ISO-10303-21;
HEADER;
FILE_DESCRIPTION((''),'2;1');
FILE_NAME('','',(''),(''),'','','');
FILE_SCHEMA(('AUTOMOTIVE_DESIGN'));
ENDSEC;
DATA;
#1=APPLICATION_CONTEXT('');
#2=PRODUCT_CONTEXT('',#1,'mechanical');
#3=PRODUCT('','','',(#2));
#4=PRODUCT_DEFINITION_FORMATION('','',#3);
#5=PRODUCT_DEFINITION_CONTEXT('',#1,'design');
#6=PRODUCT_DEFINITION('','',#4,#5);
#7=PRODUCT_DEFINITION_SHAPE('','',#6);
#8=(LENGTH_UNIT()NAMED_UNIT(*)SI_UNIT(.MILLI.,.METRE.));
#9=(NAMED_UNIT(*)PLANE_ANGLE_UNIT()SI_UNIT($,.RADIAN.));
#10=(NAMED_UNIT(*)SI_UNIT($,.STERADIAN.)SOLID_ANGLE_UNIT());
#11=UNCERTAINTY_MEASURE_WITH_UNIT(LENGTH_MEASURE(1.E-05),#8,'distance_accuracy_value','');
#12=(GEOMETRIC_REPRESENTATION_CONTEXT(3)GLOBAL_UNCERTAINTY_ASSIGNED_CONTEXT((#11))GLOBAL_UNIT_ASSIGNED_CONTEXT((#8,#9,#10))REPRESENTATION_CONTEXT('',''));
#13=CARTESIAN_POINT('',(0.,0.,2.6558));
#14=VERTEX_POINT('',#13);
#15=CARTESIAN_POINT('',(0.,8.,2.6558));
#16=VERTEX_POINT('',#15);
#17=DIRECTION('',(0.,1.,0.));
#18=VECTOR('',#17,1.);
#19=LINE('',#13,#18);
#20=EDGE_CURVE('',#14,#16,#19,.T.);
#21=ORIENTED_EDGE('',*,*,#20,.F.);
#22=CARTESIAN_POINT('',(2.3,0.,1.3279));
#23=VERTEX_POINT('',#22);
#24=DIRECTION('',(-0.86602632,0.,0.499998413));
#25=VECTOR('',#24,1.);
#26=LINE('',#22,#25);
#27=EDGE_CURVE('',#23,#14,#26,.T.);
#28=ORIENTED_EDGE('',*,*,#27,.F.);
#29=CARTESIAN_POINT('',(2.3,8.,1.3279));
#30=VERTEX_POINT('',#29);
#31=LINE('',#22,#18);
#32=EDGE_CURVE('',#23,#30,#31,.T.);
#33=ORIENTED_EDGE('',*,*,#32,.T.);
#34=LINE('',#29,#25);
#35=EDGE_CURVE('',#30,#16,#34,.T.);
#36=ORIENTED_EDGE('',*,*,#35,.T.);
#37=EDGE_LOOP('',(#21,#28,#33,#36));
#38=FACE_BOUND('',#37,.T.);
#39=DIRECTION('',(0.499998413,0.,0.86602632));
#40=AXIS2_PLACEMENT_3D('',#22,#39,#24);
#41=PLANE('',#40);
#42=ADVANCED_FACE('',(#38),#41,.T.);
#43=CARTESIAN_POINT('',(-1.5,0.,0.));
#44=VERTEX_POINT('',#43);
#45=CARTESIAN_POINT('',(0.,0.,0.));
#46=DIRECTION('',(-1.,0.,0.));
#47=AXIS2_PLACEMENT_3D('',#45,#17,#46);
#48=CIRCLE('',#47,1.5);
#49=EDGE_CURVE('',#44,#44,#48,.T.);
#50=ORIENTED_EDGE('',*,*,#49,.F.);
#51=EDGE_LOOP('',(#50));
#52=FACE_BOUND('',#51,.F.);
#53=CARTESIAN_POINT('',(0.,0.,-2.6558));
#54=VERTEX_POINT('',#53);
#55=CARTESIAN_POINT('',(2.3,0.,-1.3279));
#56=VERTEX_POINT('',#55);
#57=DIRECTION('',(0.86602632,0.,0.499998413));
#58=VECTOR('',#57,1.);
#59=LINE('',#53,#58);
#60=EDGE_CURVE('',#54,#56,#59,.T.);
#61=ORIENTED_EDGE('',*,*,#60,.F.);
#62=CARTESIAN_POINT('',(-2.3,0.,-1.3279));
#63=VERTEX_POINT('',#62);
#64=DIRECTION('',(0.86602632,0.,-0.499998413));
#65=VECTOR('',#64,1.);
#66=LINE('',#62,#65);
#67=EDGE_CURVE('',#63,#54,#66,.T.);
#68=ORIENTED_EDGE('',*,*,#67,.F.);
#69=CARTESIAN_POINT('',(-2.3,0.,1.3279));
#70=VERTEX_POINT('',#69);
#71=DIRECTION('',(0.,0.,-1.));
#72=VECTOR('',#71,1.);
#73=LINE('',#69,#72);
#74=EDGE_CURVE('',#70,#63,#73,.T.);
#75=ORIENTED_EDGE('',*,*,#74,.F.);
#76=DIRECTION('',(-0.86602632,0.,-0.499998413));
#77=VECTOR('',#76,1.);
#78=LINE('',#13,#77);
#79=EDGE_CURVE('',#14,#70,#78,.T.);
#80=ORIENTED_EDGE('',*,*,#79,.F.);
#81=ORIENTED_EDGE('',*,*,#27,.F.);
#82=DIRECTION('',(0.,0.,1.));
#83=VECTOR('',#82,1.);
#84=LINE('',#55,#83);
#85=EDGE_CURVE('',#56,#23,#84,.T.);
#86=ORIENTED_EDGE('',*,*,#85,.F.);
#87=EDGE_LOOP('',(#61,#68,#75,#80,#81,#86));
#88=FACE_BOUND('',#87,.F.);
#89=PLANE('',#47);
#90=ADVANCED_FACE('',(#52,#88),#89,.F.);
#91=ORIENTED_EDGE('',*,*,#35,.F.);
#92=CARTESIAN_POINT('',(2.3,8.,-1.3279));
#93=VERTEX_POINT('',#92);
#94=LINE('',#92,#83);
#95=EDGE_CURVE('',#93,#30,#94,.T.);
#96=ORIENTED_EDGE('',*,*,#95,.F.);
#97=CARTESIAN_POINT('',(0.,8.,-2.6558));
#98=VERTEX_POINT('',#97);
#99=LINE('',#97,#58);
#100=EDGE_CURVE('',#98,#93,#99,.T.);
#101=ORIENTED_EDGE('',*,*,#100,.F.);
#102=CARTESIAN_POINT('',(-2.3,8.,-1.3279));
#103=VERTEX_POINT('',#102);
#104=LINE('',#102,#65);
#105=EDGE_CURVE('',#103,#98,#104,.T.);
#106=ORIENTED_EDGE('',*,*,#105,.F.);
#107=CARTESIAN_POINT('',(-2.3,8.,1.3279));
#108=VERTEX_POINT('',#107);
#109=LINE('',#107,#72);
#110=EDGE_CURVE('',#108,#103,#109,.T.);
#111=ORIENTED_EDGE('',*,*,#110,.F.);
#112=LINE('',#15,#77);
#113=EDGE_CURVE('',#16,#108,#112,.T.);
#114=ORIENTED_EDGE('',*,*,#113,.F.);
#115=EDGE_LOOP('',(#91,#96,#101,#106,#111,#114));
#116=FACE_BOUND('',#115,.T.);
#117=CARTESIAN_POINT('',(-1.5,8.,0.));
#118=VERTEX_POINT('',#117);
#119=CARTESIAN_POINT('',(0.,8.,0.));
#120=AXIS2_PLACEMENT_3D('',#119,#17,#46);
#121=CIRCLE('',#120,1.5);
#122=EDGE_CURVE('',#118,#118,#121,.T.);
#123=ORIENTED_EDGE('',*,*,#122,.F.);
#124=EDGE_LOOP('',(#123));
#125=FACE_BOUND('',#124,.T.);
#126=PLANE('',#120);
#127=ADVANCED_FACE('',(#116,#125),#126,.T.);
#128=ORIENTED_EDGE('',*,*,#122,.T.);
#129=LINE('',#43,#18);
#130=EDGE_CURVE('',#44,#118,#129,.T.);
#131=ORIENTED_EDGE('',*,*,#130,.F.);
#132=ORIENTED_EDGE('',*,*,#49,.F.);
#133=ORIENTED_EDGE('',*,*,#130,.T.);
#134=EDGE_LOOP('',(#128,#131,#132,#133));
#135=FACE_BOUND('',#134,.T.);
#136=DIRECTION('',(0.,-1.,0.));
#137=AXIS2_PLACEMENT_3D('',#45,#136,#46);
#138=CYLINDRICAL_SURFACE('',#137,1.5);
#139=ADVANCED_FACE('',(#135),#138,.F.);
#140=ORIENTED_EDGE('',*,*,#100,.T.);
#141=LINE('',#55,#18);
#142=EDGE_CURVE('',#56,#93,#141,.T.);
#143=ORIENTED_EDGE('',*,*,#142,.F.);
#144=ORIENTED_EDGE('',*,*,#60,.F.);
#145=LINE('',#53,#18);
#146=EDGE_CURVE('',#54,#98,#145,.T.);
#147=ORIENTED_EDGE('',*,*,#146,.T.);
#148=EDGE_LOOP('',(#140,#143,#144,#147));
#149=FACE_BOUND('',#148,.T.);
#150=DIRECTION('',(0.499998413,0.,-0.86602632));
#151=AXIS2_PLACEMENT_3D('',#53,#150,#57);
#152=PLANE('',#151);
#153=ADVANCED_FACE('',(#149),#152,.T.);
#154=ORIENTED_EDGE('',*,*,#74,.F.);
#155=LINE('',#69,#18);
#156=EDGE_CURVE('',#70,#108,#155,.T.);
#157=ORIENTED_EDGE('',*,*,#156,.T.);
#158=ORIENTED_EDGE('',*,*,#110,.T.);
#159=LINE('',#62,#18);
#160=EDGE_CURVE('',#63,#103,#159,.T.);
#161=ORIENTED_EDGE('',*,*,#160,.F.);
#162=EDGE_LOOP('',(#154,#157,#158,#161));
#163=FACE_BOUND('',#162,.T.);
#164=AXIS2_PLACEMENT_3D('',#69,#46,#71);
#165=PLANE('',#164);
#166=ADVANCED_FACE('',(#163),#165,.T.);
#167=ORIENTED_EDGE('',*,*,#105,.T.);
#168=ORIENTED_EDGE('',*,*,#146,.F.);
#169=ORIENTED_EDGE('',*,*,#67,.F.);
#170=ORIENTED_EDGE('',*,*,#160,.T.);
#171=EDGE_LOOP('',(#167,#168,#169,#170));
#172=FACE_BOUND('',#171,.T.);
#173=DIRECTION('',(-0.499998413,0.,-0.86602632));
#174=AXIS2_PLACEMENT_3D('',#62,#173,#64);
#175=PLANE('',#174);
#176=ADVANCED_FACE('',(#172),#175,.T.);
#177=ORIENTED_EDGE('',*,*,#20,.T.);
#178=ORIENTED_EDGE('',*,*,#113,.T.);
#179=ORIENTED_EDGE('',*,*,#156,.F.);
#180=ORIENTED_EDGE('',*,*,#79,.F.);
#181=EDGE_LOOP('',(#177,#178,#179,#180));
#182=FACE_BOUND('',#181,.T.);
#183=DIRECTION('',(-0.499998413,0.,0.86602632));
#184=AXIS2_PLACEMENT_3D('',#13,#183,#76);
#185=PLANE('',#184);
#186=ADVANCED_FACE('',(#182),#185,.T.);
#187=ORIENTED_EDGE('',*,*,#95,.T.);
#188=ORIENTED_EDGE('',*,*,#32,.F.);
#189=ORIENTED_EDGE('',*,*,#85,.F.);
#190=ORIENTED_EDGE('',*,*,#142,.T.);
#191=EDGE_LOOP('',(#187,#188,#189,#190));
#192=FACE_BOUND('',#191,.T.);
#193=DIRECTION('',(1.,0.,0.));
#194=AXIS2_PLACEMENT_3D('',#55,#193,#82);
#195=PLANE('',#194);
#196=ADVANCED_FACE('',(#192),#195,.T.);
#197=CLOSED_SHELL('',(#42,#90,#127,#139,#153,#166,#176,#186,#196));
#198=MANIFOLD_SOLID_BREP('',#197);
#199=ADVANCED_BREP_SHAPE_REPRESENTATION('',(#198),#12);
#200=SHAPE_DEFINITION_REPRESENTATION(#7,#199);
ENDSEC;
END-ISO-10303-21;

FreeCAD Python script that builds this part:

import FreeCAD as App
import Part
import Sketcher
Q = App.Units.Quantity


def add_polygon(sketch, points):
    """Adds a closed chain of lines whose ends are joined by coincident constraints."""
    first, n = sketch.GeometryCount, len(points)
    for a, b in zip(points, points[1:] + points[:1]):
        sketch.addGeometry(Part.LineSegment(App.Vector(*a, 0), App.Vector(*b, 0)), False)
    for i in range(n):
        sketch.addConstraint(Sketcher.Constraint("Coincident", first + i, 2, first + (i + 1) % n, 1))

doc = App.newDocument("Part")
body = doc.addObject("PartDesign::Body", "Body")

sketch1 = body.newObject("Sketcher::SketchObject", "Sketch")
sketch1.AttachmentSupport = (doc.getObject("XZ_Plane"), [""])
sketch1.MapMode = "FlatFace"
add_polygon(sketch1, [(2.3, -1.3), (0, -2.7), (-2.3, -1.3), (-2.3, 1.3), (0, 2.7), (2.3, 1.3)])
sketch1.addGeometry(Part.Circle(App.Vector(0, 0, 0), App.Vector(0, 0, 1), 1.5), False)
sketch1.addConstraint([
    Sketcher.Constraint("Vertical", 2),
    Sketcher.Constraint("Vertical", 5),
    Sketcher.Constraint("Coincident", 6, 3, -1, 1),
    Sketcher.Constraint("Symmetric", 0, 2, 3, 2, -1, 1),
    Sketcher.Constraint("Symmetric", 1, 2, 4, 2, -1, 1),
    Sketcher.Constraint("PointOnObject", 0, 2, -2),
    Sketcher.Constraint("Parallel", 0, 3),
    Sketcher.Constraint("Horizontal", 2, 2, 4, 2),
    Sketcher.Constraint("Diameter", 6, Q("3 mm")),
    Sketcher.Constraint("DistanceX", 2, 2, 4, 2, Q("4.6 mm")),
    Sketcher.Constraint("Angle", 0, Q("-150 deg")),
    Sketcher.Constraint("DistanceY", 2, 1, 2, 2, Q("2.6558 mm")),
])
pad1 = body.newObject("PartDesign::Pad", "Pad")
pad1.Profile = sketch1
pad1.Length = 8
pad1.Reversed = True

doc.recompute()
